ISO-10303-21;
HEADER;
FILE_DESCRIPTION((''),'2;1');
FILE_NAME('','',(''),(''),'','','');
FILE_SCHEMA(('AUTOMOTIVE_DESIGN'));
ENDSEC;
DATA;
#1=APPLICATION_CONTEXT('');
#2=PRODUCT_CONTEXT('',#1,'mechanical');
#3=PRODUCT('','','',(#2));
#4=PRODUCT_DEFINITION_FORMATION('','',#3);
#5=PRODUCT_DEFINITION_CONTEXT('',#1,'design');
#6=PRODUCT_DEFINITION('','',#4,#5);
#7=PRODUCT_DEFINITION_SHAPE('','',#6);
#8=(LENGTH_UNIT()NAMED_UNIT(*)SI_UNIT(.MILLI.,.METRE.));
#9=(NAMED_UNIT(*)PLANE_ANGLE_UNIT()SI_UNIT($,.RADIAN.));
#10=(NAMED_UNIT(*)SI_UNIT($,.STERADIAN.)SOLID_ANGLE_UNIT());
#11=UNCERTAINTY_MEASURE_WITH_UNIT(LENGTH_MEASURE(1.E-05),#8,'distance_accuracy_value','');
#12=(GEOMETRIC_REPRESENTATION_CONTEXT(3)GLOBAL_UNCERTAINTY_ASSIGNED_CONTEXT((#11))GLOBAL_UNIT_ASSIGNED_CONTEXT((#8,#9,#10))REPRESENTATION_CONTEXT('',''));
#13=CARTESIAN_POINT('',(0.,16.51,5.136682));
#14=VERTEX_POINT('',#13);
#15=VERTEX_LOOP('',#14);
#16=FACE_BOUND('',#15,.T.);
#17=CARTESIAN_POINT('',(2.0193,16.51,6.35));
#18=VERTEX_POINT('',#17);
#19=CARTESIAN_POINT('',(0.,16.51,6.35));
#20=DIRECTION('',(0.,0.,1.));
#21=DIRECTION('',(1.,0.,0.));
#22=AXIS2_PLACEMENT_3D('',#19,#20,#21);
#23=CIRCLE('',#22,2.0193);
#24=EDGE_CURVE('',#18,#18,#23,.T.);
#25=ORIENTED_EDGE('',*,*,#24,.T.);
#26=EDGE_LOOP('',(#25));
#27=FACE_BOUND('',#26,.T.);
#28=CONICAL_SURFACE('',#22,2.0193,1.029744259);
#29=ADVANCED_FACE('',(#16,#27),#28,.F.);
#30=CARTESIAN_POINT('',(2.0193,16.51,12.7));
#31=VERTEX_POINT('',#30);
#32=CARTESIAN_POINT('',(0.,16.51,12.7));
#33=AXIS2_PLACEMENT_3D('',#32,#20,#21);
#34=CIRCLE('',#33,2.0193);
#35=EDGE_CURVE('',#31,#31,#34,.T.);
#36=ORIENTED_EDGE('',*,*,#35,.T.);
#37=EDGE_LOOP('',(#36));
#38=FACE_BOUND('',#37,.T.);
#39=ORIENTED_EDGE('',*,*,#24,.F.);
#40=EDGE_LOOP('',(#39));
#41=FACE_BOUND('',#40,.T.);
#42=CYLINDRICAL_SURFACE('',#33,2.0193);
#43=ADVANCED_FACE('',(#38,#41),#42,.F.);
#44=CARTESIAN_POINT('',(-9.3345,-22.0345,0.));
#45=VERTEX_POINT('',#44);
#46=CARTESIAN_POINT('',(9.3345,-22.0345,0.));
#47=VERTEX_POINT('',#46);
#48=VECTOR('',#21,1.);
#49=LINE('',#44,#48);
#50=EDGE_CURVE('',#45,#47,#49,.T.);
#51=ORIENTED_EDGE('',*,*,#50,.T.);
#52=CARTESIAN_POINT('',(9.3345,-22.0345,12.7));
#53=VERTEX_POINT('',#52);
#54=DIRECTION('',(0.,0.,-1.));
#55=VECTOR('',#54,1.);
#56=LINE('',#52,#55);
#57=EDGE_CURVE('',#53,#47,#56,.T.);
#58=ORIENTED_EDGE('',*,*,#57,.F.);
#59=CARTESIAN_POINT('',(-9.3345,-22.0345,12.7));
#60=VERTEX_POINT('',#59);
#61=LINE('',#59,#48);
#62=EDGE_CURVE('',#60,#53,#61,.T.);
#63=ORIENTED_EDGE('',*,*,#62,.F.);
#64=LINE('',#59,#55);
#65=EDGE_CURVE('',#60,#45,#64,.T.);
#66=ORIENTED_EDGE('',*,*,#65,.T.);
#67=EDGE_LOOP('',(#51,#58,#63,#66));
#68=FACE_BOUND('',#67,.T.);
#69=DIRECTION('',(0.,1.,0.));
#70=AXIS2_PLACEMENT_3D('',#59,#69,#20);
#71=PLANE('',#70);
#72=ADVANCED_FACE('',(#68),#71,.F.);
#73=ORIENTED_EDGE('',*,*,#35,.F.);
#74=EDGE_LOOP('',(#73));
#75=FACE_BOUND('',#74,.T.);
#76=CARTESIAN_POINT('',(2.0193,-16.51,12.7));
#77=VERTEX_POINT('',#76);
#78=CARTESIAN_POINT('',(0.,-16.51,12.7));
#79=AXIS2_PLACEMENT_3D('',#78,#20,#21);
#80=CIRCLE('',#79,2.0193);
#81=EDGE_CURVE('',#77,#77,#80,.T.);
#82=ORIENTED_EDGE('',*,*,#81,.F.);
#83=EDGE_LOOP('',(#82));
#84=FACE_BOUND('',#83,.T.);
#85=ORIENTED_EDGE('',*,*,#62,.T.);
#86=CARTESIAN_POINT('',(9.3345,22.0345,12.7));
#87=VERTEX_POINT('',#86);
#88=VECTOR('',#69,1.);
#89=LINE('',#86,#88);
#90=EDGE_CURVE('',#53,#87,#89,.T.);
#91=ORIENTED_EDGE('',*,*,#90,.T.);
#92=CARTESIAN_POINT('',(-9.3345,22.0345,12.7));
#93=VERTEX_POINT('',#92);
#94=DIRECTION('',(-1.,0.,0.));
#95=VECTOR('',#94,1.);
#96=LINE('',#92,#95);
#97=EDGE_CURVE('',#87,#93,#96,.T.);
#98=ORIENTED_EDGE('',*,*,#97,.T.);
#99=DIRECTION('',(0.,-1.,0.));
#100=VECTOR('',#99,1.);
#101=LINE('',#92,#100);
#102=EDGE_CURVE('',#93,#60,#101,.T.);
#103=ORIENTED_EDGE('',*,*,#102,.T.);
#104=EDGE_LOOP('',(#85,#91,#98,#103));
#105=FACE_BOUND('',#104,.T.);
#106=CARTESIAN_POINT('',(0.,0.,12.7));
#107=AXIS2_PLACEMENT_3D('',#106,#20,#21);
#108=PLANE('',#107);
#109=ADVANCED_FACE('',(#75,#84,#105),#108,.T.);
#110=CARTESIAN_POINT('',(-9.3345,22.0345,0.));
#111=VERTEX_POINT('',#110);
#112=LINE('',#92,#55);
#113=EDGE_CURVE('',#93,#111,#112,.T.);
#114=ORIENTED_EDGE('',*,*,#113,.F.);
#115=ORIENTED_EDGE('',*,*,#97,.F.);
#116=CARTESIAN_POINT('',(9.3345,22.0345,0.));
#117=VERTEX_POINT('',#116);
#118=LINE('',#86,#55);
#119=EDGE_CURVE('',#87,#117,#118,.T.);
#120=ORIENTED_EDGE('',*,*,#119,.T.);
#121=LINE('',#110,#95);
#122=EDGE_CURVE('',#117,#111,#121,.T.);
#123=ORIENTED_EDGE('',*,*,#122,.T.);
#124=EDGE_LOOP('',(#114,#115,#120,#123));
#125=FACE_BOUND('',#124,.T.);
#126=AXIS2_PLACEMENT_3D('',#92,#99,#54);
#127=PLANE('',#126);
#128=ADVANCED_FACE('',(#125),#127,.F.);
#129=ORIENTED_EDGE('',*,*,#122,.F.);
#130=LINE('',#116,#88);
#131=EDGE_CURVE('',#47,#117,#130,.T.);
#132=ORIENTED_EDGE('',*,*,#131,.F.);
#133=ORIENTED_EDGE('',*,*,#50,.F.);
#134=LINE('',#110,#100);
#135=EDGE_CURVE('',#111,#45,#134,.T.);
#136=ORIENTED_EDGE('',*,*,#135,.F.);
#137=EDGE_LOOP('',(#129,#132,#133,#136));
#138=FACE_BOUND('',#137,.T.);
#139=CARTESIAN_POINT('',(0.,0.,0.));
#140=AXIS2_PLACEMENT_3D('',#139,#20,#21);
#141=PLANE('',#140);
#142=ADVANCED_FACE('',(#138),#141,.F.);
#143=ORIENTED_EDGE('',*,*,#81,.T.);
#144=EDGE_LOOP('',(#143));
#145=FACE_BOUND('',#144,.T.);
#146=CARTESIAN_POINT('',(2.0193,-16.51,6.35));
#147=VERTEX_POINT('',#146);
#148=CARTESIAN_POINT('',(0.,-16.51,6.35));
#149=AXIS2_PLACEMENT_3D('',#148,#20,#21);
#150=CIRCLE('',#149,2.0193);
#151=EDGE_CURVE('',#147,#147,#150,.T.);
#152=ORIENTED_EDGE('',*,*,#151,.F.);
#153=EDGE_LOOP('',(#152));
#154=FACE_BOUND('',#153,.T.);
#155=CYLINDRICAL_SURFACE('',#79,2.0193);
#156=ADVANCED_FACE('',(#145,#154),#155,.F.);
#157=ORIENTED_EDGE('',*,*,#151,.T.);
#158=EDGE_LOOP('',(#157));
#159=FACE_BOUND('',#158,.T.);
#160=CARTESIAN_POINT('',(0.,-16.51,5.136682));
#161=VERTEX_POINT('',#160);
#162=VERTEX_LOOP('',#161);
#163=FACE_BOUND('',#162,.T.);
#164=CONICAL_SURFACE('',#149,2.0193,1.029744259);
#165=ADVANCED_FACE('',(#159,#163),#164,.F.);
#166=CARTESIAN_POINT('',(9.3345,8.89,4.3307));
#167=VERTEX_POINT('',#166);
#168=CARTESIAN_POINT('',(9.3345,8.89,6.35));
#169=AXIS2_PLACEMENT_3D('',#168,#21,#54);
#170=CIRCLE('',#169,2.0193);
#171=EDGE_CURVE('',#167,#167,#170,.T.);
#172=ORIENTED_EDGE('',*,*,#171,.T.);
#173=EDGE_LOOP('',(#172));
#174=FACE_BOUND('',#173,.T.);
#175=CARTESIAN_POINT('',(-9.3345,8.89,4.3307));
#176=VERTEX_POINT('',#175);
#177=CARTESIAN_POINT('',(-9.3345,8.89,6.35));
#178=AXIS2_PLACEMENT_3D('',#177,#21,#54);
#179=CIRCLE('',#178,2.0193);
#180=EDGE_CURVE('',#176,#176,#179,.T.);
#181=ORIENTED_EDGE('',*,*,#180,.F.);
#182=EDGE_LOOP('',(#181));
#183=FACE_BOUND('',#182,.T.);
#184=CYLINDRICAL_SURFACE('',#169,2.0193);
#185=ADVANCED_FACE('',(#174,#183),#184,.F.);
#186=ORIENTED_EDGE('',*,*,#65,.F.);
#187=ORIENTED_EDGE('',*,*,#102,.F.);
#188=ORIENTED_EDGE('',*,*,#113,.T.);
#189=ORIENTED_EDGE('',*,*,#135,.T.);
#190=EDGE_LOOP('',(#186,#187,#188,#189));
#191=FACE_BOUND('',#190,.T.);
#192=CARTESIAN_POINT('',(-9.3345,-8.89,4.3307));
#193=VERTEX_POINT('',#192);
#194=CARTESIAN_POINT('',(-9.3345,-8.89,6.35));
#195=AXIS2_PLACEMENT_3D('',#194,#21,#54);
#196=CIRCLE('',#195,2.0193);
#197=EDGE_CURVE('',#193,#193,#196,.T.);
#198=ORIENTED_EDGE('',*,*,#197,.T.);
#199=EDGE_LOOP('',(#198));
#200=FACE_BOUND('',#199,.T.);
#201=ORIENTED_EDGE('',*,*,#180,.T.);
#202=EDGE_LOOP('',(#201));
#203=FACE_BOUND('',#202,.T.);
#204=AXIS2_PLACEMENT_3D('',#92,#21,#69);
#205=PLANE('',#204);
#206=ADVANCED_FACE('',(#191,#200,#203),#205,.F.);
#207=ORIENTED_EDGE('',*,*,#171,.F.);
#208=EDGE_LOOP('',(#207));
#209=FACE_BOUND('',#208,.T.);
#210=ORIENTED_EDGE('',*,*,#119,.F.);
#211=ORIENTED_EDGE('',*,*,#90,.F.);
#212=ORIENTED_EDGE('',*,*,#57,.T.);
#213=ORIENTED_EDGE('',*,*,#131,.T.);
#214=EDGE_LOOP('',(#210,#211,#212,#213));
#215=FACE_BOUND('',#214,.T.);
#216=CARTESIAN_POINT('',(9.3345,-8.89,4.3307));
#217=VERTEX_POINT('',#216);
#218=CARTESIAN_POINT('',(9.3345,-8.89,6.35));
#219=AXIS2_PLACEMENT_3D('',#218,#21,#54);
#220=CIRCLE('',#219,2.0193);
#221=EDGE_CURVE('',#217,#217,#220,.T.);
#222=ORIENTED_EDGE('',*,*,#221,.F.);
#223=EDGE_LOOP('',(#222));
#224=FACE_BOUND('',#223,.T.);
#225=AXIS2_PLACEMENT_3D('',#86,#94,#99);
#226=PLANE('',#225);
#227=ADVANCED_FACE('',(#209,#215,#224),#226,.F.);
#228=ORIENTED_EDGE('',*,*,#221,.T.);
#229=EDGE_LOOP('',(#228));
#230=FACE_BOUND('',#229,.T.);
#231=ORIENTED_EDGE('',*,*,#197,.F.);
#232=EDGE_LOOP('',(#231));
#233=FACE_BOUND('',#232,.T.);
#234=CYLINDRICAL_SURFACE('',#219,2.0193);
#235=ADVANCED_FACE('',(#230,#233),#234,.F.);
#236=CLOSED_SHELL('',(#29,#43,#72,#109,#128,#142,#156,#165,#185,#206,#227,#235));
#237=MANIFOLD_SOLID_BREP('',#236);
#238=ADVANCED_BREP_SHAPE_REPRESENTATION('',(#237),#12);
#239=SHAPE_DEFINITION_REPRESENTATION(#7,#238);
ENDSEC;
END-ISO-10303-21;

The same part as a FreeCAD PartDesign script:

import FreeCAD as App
import Part
import Sketcher
from FreeCAD import Vector
Q = App.Units.Quantity

doc = App.newDocument("Part")
body = doc.addObject("PartDesign::Body", "Body")

sketch1 = body.newObject("Sketcher::SketchObject", "Sketch")
sketch1.AttachmentSupport = (doc.getObject("XY_Plane"), [""])
sketch1.MapMode = "FlatFace"
sketch1.addGeometry([
    Part.LineSegment(Vector(-9, 22, 0), Vector(-9, -22, 0)),
    Part.LineSegment(Vector(-9, -22, 0), Vector(9, -22, 0)),
    Part.LineSegment(Vector(9, -22, 0), Vector(9, 22, 0)),
    Part.LineSegment(Vector(9, 22, 0), Vector(-9, 22, 0)),
], False)
sketch1.addConstraint([
    Sketcher.Constraint("Coincident", 0, 2, 1, 1),
    Sketcher.Constraint("Coincident", 1, 2, 2, 1),
    Sketcher.Constraint("Coincident", 2, 2, 3, 1),
    Sketcher.Constraint("Coincident", 3, 2, 0, 1),
    Sketcher.Constraint("Vertical", 0),
    Sketcher.Constraint("Horizontal", 1),
    Sketcher.Constraint("Vertical", 2),
    Sketcher.Constraint("Horizontal", 3),
    Sketcher.Constraint("Symmetric", 0, 2, 2, 2, -1, 1),
    Sketcher.Constraint("DistanceX", 1, 1, 1, 2, Q("0.735 in")),
    Sketcher.Constraint("DistanceY", 0, 2, 0, 1, Q("1.735 in")),
])
pad1 = body.newObject("PartDesign::Pad", "Pad")
pad1.Profile = sketch1
pad1.Length = Q("0.5 in")

sketch2 = body.newObject("Sketcher::SketchObject", "Sketch001")
sketch2.AttachmentSupport = (doc.getObject("YZ_Plane"), [""])
sketch2.MapMode = "FlatFace"
sketch2.AttachmentOffset = App.Placement(Vector(0, 0, 0.3675 * 25.4), App.Rotation())
sketch2.addGeometry([
    Part.Circle(Vector(8.9, 6.3, 0), Vector(0, 0, 1), 2),
    Part.Circle(Vector(-8.9, 6.3, 0), Vector(0, 0, 1), 2),
], False)
sketch2.addConstraint([
    Sketcher.Constraint("Equal", 0, 1),
    Sketcher.Constraint("Symmetric", 0, 3, 1, 3, -2),
    Sketcher.Constraint("Diameter", 0, Q("0.159 in")),
    Sketcher.Constraint("DistanceX", 1, 3, 0, 3, Q("0.7 in")),
    Sketcher.Constraint("DistanceY", -1, 1, 0, 3, Q("0.25 in")),
])
doc.recompute()
hole = body.newObject("PartDesign::Hole", "Hole")
hole.Profile = sketch2
hole.ThreadType = "None"
hole.Diameter = Q("0.159 in")
hole.DepthType = "ThroughAll"

sketch3 = body.newObject("Sketcher::SketchObject", "Sketch002")
sketch3.AttachmentSupport = (doc.getObject("XY_Plane"), [""])
sketch3.MapMode = "FlatFace"
sketch3.AttachmentOffset = App.Placement(Vector(0, 0, 0.5 * 25.4), App.Rotation())
sketch3.addGeometry([
    Part.Circle(Vector(0, 16.5, 0), Vector(0, 0, 1), 2),
    Part.Circle(Vector(0, -16.5, 0), Vector(0, 0, 1), 2),
], False)
sketch3.addConstraint([
    Sketcher.Constraint("Equal", 0, 1),
    Sketcher.Constraint("Symmetric", 0, 3, 1, 3, -1, 1),
    Sketcher.Constraint("PointOnObject", 0, 3, -2),
    Sketcher.Constraint("Diameter", 0, Q("0.159 in")),
    Sketcher.Constraint("DistanceY", 1, 3, 0, 3, Q("1.3 in")),
])
doc.recompute()
hole2 = body.newObject("PartDesign::Hole", "Hole001")
hole2.Profile = sketch3
hole2.ThreadType = "None"
hole2.Diameter = Q("0.159 in")
hole2.DepthType = "Dimension"
hole2.Depth = Q("0.25 in")
hole2.DrillPoint = "Angled"
hole2.DrillPointAngle = 118

doc.recompute()
